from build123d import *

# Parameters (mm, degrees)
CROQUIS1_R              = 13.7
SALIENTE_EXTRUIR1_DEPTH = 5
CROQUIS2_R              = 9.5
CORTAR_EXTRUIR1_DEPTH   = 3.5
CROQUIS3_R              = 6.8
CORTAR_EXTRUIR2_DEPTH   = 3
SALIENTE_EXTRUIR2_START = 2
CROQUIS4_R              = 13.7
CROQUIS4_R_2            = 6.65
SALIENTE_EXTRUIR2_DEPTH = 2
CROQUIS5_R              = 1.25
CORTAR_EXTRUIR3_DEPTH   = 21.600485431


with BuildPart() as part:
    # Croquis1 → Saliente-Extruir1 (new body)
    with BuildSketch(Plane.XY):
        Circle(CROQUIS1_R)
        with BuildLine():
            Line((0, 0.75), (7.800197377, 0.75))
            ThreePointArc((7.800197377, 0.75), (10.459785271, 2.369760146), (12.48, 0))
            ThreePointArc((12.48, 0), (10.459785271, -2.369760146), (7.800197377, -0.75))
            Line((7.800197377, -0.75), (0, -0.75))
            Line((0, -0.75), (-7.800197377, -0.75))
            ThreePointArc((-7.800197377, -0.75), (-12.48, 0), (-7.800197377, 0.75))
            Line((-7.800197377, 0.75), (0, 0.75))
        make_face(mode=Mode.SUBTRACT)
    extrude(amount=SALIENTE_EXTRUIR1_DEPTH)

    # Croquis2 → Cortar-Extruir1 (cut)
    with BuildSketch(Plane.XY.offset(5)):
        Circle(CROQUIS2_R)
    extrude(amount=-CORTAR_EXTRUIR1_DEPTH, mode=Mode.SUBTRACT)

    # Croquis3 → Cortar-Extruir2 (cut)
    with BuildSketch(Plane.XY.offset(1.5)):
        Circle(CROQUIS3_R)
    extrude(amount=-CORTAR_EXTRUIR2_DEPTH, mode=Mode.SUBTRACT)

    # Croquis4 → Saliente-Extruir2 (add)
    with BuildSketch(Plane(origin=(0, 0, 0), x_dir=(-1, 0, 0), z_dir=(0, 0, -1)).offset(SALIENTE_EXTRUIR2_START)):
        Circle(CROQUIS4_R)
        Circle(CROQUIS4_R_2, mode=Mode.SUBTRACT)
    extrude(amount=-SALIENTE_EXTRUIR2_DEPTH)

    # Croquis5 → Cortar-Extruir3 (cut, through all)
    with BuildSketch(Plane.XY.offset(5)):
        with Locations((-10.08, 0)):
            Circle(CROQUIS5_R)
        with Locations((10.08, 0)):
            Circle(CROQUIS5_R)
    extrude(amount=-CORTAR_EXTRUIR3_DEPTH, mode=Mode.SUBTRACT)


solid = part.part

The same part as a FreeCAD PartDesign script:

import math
import FreeCAD as App
import Part
import Sketcher
from FreeCAD import Vector
Q = App.Units.Quantity

doc = App.newDocument("Part")
body = doc.addObject("PartDesign::Body", "Body")

# Sketch on XY plane
sketch1 = body.newObject("Sketcher::SketchObject", "Sketch")
sketch1.AttachmentSupport = (doc.getObject("XY_Plane"), [""])
sketch1.MapMode = "FlatFace"
sketch1.addGeometry([
    Part.Circle(Vector(0, 0, 0), Vector(0, 0, 1), 13.7),  # 0
    Part.LineSegment(Vector(-7.8, 0.8, 0), Vector(7.8, 0.8, 0)),  # 1
    Part.ArcOfCircle(Part.Circle(Vector(10.1, 0, 0), Vector(0, 0, 1), 2.4), math.radians(0), math.radians(162)),  # 2
    Part.ArcOfCircle(Part.Circle(Vector(10.1, 0, 0), Vector(0, 0, 1), 2.4), math.radians(-162), math.radians(0)),  # 3
    Part.LineSegment(Vector(7.8, -0.8, 0), Vector(-7.8, -0.8, 0)),  # 4
    Part.ArcOfCircle(Part.Circle(Vector(-10.1, 0, 0), Vector(0, 0, 1), 2.4), math.radians(18), math.radians(342)),  # 5
], False)
sketch1.addConstraint([
    Sketcher.Constraint("Coincident", 1, 2, 2, 2),
    Sketcher.Constraint("Tangent", 2, 1, 3, 2),
    Sketcher.Constraint("Coincident", 3, 1, 4, 1),
    Sketcher.Constraint("Coincident", 4, 2, 5, 2),
    Sketcher.Constraint("Coincident", 5, 1, 1, 1),
    Sketcher.Constraint("Horizontal", 1),
    Sketcher.Constraint("Horizontal", 4),
    Sketcher.Constraint("Coincident", 0, 3, -1, 1),
    Sketcher.Constraint("Equal", 2, 3),
    Sketcher.Constraint("Equal", 3, 5),
    Sketcher.Constraint("Symmetric", 2, 3, 5, 3, -1, 1),
    Sketcher.Constraint("Symmetric", 1, 2, 3, 1, -1),
    Sketcher.Constraint("PointOnObject", 2, 1, -1),
    Sketcher.Constraint("Diameter", 0, Q("27.4 mm")),
    Sketcher.Constraint("Radius", 2, Q("2.4 mm")),
    Sketcher.Constraint("DistanceY", 3, 1, 1, 2, Q("1.5 mm")),
    Sketcher.Constraint("DistanceX", -1, 1, 2, 3, Q("10.08 mm")),
])
pad1 = body.newObject("PartDesign::Pad", "Pad")
pad1.Profile = sketch1
pad1.Length = 5

# Sketch on XY plane
sketch2 = body.newObject("Sketcher::SketchObject", "Sketch001")
sketch2.AttachmentSupport = (doc.getObject("XY_Plane"), [""])
sketch2.MapMode = "FlatFace"
sketch2.AttachmentOffset = App.Placement(Vector(0, 0, 5), App.Rotation())
sketch2.addGeometry(Part.Circle(Vector(0, 0, 0), Vector(0, 0, 1), 10), False)
sketch2.addConstraint([
    Sketcher.Constraint("Coincident", 0, 3, -1, 1),
    Sketcher.Constraint("Diameter", 0, Q("19 mm")),
])
pocket1 = body.newObject("PartDesign::Pocket", "Pocket")
pocket1.Profile = sketch2
pocket1.Length = 3.5

# Sketch on XY plane
sketch3 = body.newObject("Sketcher::SketchObject", "Sketch002")
sketch3.AttachmentSupport = (doc.getObject("XY_Plane"), [""])
sketch3.MapMode = "FlatFace"
sketch3.AttachmentOffset = App.Placement(Vector(0, 0, 1.5), App.Rotation())
sketch3.addGeometry(Part.Circle(Vector(0, 0, 0), Vector(0, 0, 1), 7), False)
sketch3.addConstraint([
    Sketcher.Constraint("Coincident", 0, 3, -1, 1),
    Sketcher.Constraint("Diameter", 0, Q("13.6 mm")),
])
pocket2 = body.newObject("PartDesign::Pocket", "Pocket001")
pocket2.Profile = sketch3
pocket2.Length = 3

# Sketch on XY plane
sketch4 = body.newObject("Sketcher::SketchObject", "Sketch003")
sketch4.AttachmentSupport = (doc.getObject("XY_Plane"), [""])
sketch4.MapMode = "FlatFace"
sketch4.AttachmentOffset = App.Placement(Vector(0, 0, -2), App.Rotation())
sketch4.addGeometry([
    Part.Circle(Vector(0, 0, 0), Vector(0, 0, 1), 14),
    Part.Circle(Vector(0, 0, 0), Vector(0, 0, 1), 7),
], False)
sketch4.addConstraint([
    Sketcher.Constraint("Coincident", 0, 3, -1, 1),
    Sketcher.Constraint("Coincident", 1, 3, -1, 1),
    Sketcher.Constraint("Diameter", 0, Q("27.4 mm")),
    Sketcher.Constraint("Diameter", 1, Q("13.3 mm")),
])
pad2 = body.newObject("PartDesign::Pad", "Pad001")
pad2.Profile = sketch4
pad2.Length = 2

# Sketch on XY plane
sketch5 = body.newObject("Sketcher::SketchObject", "Sketch004")
sketch5.AttachmentSupport = (doc.getObject("XY_Plane"), [""])
sketch5.MapMode = "FlatFace"
sketch5.AttachmentOffset = App.Placement(Vector(0, 0, 5), App.Rotation())
sketch5.addGeometry([
    Part.Circle(Vector(-10.1, 0, 0), Vector(0, 0, 1), 1.2),
    Part.Circle(Vector(10.1, 0, 0), Vector(0, 0, 1), 1.2),
], False)
sketch5.addConstraint([
    Sketcher.Constraint("Equal", 0, 1),
    Sketcher.Constraint("Symmetric", 0, 3, 1, 3, -1, 1),
    Sketcher.Constraint("PointOnObject", 0, 3, -1),
    Sketcher.Constraint("Diameter", 0, Q("2.5 mm")),
    Sketcher.Constraint("DistanceX", 0, 3, -1, 1, Q("10.08 mm")),
])
pocket3 = body.newObject("PartDesign::Pocket", "Pocket002")
pocket3.Profile = sketch5
pocket3.Type = "ThroughAll"

doc.recompute()
